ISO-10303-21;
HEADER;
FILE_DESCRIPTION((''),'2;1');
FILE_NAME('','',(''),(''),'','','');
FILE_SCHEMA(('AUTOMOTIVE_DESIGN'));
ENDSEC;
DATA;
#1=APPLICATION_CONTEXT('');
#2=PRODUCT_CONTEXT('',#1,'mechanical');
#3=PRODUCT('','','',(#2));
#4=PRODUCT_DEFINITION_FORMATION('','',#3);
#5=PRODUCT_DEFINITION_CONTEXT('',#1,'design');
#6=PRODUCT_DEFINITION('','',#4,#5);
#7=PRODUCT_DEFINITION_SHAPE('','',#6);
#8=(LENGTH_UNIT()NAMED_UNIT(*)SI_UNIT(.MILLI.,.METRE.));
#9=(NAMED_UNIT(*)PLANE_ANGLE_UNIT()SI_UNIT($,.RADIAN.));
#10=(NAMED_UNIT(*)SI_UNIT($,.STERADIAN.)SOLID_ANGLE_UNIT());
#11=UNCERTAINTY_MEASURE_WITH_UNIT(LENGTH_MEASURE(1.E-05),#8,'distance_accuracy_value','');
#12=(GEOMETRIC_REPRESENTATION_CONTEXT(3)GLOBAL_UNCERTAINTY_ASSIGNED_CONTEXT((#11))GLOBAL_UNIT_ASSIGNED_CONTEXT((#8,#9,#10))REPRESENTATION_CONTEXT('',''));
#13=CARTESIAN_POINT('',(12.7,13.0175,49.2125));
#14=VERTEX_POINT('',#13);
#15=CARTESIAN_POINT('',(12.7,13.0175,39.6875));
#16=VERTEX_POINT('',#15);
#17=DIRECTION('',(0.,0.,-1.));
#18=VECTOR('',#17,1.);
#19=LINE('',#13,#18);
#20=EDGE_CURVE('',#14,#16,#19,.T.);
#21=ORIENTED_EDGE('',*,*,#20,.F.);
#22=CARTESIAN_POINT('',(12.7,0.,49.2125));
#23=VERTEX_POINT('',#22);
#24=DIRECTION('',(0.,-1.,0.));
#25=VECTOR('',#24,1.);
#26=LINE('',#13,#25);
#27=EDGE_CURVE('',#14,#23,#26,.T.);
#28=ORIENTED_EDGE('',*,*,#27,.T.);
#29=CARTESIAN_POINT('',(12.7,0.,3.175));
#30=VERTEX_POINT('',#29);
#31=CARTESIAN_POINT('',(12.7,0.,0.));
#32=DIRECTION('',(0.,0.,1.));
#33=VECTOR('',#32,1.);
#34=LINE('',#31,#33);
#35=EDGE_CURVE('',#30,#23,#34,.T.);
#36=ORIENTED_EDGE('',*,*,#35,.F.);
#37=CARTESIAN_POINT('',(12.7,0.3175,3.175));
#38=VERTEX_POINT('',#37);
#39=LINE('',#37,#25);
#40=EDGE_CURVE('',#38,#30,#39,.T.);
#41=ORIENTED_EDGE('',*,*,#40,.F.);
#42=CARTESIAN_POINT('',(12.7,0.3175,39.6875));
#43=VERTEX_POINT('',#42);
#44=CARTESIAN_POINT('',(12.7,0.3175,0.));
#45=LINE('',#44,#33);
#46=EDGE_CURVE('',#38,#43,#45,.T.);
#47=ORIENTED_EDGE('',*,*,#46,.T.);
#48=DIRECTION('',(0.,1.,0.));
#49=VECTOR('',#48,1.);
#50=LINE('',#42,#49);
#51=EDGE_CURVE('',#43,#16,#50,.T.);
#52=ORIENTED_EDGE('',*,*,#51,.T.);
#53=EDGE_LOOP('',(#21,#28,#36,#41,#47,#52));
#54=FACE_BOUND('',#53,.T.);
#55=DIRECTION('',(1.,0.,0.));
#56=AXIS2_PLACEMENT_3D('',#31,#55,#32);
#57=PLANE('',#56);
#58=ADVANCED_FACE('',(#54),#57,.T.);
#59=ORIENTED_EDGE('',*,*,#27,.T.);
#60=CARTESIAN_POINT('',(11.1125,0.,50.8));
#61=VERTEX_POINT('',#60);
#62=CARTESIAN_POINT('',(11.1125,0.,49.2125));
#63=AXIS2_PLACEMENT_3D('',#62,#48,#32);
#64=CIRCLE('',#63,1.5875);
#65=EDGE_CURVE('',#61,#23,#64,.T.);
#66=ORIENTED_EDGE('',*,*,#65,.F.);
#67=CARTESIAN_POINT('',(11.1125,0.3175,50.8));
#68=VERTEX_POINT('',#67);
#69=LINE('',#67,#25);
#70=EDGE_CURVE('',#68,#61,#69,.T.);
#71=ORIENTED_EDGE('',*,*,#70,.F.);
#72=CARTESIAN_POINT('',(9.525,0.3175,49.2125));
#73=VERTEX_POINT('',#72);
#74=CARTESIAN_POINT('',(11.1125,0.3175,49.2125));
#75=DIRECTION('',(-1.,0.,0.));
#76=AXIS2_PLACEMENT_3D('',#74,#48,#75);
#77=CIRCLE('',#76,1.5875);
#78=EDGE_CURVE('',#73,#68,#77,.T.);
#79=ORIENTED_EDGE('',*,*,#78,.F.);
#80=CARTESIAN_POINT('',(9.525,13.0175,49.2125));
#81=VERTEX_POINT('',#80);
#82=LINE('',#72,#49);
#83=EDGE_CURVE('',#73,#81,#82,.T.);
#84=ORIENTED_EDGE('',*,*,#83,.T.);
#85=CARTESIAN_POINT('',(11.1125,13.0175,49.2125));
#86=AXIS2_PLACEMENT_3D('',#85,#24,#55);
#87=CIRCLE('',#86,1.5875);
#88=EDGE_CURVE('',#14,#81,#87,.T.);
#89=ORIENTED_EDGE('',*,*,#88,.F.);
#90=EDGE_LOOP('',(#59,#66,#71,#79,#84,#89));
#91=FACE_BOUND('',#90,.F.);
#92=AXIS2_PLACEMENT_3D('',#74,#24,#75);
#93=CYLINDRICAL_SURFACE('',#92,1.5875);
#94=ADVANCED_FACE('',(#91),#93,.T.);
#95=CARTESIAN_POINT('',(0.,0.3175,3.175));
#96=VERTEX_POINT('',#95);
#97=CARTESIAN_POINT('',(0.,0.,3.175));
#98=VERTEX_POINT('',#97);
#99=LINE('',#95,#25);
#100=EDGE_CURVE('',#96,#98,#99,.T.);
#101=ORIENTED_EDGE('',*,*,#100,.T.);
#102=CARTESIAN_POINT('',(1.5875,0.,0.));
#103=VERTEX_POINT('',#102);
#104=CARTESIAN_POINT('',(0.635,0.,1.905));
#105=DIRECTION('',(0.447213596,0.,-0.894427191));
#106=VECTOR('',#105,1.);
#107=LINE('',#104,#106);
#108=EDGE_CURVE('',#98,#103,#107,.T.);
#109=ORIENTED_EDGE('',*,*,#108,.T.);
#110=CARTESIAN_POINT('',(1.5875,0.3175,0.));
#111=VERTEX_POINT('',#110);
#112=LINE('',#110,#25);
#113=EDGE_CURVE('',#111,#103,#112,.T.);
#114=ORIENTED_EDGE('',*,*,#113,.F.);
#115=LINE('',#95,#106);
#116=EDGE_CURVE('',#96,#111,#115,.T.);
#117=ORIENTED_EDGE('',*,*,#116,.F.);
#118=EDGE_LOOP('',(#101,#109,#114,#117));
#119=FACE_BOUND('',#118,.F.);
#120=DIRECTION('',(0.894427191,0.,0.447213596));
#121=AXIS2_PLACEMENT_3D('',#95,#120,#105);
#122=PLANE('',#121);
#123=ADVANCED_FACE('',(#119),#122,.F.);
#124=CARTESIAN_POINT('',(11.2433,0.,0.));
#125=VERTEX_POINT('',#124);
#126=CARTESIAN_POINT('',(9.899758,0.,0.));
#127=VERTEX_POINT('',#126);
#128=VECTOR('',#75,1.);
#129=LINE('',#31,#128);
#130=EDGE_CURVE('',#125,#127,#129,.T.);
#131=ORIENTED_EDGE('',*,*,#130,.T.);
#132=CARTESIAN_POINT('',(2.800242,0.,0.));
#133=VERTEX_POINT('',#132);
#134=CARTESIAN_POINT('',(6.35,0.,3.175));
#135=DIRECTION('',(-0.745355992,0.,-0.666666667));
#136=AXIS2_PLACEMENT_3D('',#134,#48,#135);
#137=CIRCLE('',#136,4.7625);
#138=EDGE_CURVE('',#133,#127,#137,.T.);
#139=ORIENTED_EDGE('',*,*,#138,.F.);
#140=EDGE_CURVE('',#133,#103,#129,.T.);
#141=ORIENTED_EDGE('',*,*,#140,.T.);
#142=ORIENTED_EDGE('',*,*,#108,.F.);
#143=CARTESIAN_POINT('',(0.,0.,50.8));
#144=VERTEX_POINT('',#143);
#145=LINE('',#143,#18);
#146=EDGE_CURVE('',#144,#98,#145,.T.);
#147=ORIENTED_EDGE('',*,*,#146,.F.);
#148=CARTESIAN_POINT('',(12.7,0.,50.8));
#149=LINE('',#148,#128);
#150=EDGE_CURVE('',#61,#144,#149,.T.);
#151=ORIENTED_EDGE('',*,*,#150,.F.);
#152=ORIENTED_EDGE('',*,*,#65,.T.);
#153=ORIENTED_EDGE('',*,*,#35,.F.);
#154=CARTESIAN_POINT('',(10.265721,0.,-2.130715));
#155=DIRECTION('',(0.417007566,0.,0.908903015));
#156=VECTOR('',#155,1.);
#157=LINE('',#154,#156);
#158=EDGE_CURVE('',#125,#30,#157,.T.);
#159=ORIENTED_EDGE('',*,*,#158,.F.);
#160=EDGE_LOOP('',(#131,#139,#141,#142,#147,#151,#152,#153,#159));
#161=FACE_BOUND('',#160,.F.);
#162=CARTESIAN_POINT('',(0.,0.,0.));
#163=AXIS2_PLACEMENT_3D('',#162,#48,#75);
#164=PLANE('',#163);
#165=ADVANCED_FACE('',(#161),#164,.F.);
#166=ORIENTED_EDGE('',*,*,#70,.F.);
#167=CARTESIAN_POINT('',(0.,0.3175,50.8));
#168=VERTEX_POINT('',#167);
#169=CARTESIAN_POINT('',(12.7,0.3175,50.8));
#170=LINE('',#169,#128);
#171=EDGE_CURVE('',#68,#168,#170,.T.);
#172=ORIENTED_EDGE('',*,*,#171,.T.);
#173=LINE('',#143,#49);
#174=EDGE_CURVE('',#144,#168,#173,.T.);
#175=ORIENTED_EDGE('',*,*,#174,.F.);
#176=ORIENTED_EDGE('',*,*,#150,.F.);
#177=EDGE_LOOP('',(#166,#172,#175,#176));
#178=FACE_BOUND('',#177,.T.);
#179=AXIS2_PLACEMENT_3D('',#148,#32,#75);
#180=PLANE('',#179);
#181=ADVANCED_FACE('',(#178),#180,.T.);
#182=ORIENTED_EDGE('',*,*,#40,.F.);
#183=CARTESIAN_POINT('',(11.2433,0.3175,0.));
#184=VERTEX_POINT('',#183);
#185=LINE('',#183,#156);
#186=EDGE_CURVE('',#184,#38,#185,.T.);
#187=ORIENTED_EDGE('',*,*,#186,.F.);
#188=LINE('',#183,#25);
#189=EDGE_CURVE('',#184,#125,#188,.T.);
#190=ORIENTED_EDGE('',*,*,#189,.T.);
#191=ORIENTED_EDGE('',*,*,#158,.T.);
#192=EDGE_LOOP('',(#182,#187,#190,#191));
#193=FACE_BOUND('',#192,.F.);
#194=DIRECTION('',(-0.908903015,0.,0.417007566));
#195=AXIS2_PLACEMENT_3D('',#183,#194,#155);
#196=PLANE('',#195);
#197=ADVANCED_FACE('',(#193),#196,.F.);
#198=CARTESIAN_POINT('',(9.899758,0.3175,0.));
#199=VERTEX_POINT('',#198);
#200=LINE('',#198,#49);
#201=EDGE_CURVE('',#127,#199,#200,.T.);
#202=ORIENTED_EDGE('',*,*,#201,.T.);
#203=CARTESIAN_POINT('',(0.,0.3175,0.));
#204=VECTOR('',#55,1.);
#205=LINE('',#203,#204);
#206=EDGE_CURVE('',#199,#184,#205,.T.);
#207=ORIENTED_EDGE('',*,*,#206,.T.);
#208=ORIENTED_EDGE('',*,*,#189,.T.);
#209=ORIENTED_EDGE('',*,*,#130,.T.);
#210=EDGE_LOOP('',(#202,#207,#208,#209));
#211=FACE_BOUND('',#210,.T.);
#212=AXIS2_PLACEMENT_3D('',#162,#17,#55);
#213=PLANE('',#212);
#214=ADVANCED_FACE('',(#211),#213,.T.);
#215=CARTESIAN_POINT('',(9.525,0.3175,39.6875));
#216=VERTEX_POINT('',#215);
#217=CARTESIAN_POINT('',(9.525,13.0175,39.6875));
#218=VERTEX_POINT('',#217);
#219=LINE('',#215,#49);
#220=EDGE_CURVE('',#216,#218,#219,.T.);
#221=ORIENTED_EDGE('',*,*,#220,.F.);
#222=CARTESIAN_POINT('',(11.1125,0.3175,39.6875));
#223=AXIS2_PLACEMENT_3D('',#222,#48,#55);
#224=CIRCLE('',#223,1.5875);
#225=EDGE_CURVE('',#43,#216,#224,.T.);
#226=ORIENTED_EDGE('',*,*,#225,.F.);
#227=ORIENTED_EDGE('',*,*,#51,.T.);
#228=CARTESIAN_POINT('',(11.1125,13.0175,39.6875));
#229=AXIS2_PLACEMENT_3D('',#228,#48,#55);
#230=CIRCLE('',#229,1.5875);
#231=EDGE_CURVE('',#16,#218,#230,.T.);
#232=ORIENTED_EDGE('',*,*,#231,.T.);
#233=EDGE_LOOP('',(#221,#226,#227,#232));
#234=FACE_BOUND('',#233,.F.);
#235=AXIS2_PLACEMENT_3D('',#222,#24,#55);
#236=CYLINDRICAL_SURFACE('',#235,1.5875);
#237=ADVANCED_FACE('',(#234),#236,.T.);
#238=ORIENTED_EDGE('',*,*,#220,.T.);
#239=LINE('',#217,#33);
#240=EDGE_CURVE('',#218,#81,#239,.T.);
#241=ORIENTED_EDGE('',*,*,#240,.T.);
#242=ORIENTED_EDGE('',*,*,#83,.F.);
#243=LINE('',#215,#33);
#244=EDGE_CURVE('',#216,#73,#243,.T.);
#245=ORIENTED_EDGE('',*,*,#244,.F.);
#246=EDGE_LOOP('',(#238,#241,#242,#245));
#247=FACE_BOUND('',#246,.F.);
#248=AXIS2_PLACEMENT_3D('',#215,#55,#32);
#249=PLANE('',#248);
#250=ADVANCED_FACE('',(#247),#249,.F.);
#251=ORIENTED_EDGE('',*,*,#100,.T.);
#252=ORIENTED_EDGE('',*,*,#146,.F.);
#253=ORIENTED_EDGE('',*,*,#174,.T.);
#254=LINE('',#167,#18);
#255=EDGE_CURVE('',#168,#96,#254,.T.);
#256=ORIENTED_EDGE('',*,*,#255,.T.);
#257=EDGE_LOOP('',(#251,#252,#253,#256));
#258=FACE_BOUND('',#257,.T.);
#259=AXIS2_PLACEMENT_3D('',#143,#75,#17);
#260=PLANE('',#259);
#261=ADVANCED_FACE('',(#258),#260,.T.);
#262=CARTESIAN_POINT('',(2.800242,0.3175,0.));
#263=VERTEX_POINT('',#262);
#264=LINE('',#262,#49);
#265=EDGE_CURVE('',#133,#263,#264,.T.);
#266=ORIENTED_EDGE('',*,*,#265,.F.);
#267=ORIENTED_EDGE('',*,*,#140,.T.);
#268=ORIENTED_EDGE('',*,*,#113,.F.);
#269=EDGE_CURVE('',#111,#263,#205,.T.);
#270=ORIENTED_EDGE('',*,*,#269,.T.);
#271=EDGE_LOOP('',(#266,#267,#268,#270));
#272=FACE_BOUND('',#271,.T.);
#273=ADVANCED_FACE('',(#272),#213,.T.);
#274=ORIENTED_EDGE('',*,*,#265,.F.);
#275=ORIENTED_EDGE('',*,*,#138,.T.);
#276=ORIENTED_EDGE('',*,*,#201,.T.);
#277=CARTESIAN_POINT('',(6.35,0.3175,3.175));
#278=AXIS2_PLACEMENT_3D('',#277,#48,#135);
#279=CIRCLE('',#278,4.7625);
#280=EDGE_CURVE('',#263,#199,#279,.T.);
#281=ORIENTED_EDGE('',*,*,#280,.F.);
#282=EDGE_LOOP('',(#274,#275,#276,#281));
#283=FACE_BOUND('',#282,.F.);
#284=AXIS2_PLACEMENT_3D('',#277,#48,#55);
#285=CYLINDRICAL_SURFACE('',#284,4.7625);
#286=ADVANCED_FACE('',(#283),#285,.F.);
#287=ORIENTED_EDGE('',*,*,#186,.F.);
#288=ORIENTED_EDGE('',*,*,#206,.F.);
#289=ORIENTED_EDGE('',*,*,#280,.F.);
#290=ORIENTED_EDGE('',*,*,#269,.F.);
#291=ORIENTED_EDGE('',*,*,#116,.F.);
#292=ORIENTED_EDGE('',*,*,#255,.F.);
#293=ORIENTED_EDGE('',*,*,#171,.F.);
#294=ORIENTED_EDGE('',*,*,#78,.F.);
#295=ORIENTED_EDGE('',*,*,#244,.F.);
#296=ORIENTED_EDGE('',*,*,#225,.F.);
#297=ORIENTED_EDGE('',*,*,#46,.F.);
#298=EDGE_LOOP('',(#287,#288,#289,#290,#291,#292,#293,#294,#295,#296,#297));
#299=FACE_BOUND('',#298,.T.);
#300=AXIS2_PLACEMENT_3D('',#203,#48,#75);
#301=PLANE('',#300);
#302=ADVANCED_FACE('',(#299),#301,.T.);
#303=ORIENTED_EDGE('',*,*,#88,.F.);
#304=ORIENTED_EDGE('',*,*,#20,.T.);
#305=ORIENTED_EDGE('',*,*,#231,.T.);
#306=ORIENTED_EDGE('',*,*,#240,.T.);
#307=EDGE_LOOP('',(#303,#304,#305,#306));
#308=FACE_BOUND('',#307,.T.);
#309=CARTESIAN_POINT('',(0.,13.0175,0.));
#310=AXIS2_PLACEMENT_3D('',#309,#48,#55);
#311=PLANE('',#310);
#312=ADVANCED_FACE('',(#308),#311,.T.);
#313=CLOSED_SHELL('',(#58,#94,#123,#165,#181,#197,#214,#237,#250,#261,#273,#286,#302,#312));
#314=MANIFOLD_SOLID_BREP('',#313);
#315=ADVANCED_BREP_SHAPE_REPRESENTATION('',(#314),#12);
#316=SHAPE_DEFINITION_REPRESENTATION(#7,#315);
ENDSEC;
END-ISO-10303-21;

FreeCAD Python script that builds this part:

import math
import FreeCAD as App
import Part
import Sketcher
from FreeCAD import Vector
Q = App.Units.Quantity


def add_polygon(sketch, points):
    """Adds a closed chain of lines whose ends are joined by coincident constraints."""
    first, n = sketch.GeometryCount, len(points)
    for a, b in zip(points, points[1:] + points[:1]):
        sketch.addGeometry(Part.LineSegment(App.Vector(*a, 0), App.Vector(*b, 0)), False)
    for i in range(n):
        sketch.addConstraint(Sketcher.Constraint("Coincident", first + i, 2, first + (i + 1) % n, 1))

doc = App.newDocument("Part")
body = doc.addObject("PartDesign::Body", "Body")

sketch1 = body.newObject("Sketcher::SketchObject", "Sketch")
sketch1.AttachmentSupport = (doc.getObject("XZ_Plane"), [""])
sketch1.MapMode = "FlatFace"
add_polygon(sketch1, [(0, 0), (0, 50.8), (12.7, 50.8), (12.7, 0)])
sketch1.addConstraint([
    Sketcher.Constraint("Vertical", 0),
    Sketcher.Constraint("Horizontal", 1),
    Sketcher.Constraint("Vertical", 2),
    Sketcher.Constraint("Horizontal", 3),
    Sketcher.Constraint("Coincident", 3, 2, -1, 1),
    Sketcher.Constraint("DistanceY", 0, 1, 0, 2, Q("2 in")),
    Sketcher.Constraint("DistanceX", 1, 1, 1, 2, Q("0.5 in")),
])
pad1 = body.newObject("PartDesign::Pad", "Pad")
pad1.Profile = sketch1
pad1.Length = Q("0.0125 in")
pad1.Reversed = True

sketch2 = body.newObject("Sketcher::SketchObject", "Sketch001")
sketch2.AttachmentSupport = (doc.getObject("XZ_Plane"), [""])
sketch2.MapMode = "FlatFace"
sketch2.AttachmentOffset = App.Placement(Vector(0, 0, -0.0125 * 25.4), App.Rotation())
sketch2.addGeometry([
    Part.ArcOfCircle(Part.Circle(Vector(11.1125, 49.2125, 0), Vector(0, 0, 1), 1.5875), math.radians(0), math.radians(180)),
    Part.LineSegment(Vector(12.7, 49.2125, 0), Vector(12.7, 39.6875, 0)),
    Part.ArcOfCircle(Part.Circle(Vector(11.1125, 39.6875, 0), Vector(0, 0, 1), 1.5875), math.radians(180), math.radians(360)),
    Part.LineSegment(Vector(9.525, 39.6875, 0), Vector(9.525, 49.2125, 0)),
], False)
sketch2.addConstraint([
    Sketcher.Constraint("Tangent", 0, 1, 1, 1),
    Sketcher.Constraint("Tangent", 1, 2, 2, 2),
    Sketcher.Constraint("Tangent", 2, 1, 3, 1),
    Sketcher.Constraint("Tangent", 3, 2, 0, 2),
    Sketcher.Constraint("Vertical", 1),
    Sketcher.Constraint("Vertical", 3),
    Sketcher.Constraint("Radius", 0, Q("0.0625 in")),
    Sketcher.Constraint("DistanceY", 1, 2, 1, 1, Q("0.375 in")),
    Sketcher.Constraint("DistanceX", -1, 1, 2, 1, Q("0.375 in")),
    Sketcher.Constraint("DistanceY", -1, 1, 0, 3, Q("1.9375 in")),
])
pad2 = body.newObject("PartDesign::Pad", "Pad001")
pad2.Profile = sketch2
pad2.Length = Q("0.5 in")
pad2.Reversed = True

sketch3 = body.newObject("Sketcher::SketchObject", "Sketch002")
sketch3.AttachmentSupport = (doc.getObject("XZ_Plane"), [""])
sketch3.MapMode = "FlatFace"
sketch3.AttachmentOffset = App.Placement(Vector(0, 0, -0.0125 * 25.4), App.Rotation())
sketch3.addGeometry([
    Part.LineSegment(Vector(11.1125, 50.8, 0), Vector(12.7, 50.8, 0)),
    Part.LineSegment(Vector(12.7, 50.8, 0), Vector(12.7, 49.2125, 0)),
    Part.ArcOfCircle(Part.Circle(Vector(11.1125, 49.2125, 0), Vector(0, 0, 1), 1.5875), math.radians(0), math.radians(90)),
], False)
sketch3.addConstraint([
    Sketcher.Constraint("Coincident", 0, 2, 1, 1),
    Sketcher.Constraint("Tangent", 1, 2, 2, 1),
    Sketcher.Constraint("Tangent", 2, 2, 0, 1),
    Sketcher.Constraint("Horizontal", 0),
    Sketcher.Constraint("Vertical", 1),
    Sketcher.Constraint("DistanceY", -1, 1, 0, 2, Q("2 in")),
    Sketcher.Constraint("Radius", 2, Q("0.0625 in")),
    Sketcher.Constraint("DistanceX", -1, 1, 0, 2, Q("0.5 in")),
])
pocket1 = body.newObject("PartDesign::Pocket", "Pocket")
pocket1.Profile = sketch3
pocket1.Length = Q("0.5 in")
pocket1.Reversed = True

sketch4 = body.newObject("Sketcher::SketchObject", "Sketch003")
sketch4.AttachmentSupport = (doc.getObject("XZ_Plane"), [""])
sketch4.MapMode = "FlatFace"
sketch4.AttachmentOffset = App.Placement(Vector(0, 0, -0.0125 * 25.4), App.Rotation())
sketch4.addGeometry(Part.Circle(Vector(6.35, 3.175, 0), Vector(0, 0, 1), 4.7625), False)
sketch4.addConstraint([
    Sketcher.Constraint("Diameter", 0, Q("0.375 in")),
    Sketcher.Constraint("DistanceX", -1, 1, 0, 3, Q("0.25 in")),
    Sketcher.Constraint("DistanceY", -1, 1, 0, 3, Q("0.125 in")),
])
pocket2 = body.newObject("PartDesign::Pocket", "Pocket001")
pocket2.Profile = sketch4
pocket2.Length = Q("0.5 in")
pocket2.Reversed = True

sketch5 = body.newObject("Sketcher::SketchObject", "Sketch004")
sketch5.AttachmentSupport = (doc.getObject("XZ_Plane"), [""])
sketch5.MapMode = "FlatFace"
sketch5.AttachmentOffset = App.Placement(Vector(0, 0, -0.0125 * 25.4), App.Rotation())
add_polygon(sketch5, [(0, 0), (0, 3.175), (1.5875, 0)])
sketch5.addConstraint([
    Sketcher.Constraint("Vertical", 0),
    Sketcher.Constraint("Horizontal", 2),
    Sketcher.Constraint("Coincident", 2, 2, -1, 1),
    Sketcher.Constraint("DistanceX", 2, 2, 2, 1, Q("0.0625 in")),
    Sketcher.Constraint("DistanceY", 0, 1, 0, 2, Q("0.125 in")),
])
pocket3 = body.newObject("PartDesign::Pocket", "Pocket002")
pocket3.Profile = sketch5
pocket3.Length = Q("0.5 in")
pocket3.Reversed = True

sketch6 = body.newObject("Sketcher::SketchObject", "Sketch005")
sketch6.AttachmentSupport = (doc.getObject("XZ_Plane"), [""])
sketch6.MapMode = "FlatFace"
sketch6.AttachmentOffset = App.Placement(Vector(0, 0, -0.0125 * 25.4), App.Rotation())
add_polygon(sketch6, [(12.7, 0), (11.2433, 0), (12.7, 3.175)])
sketch6.addConstraint([
    Sketcher.Constraint("Horizontal", 0),
    Sketcher.Constraint("Vertical", 2),
    Sketcher.Constraint("PointOnObject", 0, 2, -1),
    Sketcher.Constraint("DistanceX", -1, 1, 1, 2, Q("0.5 in")),
    Sketcher.Constraint("DistanceY", 2, 2, 2, 1, Q("0.125 in")),
    Sketcher.Constraint("DistanceX", 0, 2, 0, 1, 1.4567),
])
pocket4 = body.newObject("PartDesign::Pocket", "Pocket003")
pocket4.Profile = sketch6
pocket4.Length = Q("0.5 in")
pocket4.Reversed = True

doc.recompute()
